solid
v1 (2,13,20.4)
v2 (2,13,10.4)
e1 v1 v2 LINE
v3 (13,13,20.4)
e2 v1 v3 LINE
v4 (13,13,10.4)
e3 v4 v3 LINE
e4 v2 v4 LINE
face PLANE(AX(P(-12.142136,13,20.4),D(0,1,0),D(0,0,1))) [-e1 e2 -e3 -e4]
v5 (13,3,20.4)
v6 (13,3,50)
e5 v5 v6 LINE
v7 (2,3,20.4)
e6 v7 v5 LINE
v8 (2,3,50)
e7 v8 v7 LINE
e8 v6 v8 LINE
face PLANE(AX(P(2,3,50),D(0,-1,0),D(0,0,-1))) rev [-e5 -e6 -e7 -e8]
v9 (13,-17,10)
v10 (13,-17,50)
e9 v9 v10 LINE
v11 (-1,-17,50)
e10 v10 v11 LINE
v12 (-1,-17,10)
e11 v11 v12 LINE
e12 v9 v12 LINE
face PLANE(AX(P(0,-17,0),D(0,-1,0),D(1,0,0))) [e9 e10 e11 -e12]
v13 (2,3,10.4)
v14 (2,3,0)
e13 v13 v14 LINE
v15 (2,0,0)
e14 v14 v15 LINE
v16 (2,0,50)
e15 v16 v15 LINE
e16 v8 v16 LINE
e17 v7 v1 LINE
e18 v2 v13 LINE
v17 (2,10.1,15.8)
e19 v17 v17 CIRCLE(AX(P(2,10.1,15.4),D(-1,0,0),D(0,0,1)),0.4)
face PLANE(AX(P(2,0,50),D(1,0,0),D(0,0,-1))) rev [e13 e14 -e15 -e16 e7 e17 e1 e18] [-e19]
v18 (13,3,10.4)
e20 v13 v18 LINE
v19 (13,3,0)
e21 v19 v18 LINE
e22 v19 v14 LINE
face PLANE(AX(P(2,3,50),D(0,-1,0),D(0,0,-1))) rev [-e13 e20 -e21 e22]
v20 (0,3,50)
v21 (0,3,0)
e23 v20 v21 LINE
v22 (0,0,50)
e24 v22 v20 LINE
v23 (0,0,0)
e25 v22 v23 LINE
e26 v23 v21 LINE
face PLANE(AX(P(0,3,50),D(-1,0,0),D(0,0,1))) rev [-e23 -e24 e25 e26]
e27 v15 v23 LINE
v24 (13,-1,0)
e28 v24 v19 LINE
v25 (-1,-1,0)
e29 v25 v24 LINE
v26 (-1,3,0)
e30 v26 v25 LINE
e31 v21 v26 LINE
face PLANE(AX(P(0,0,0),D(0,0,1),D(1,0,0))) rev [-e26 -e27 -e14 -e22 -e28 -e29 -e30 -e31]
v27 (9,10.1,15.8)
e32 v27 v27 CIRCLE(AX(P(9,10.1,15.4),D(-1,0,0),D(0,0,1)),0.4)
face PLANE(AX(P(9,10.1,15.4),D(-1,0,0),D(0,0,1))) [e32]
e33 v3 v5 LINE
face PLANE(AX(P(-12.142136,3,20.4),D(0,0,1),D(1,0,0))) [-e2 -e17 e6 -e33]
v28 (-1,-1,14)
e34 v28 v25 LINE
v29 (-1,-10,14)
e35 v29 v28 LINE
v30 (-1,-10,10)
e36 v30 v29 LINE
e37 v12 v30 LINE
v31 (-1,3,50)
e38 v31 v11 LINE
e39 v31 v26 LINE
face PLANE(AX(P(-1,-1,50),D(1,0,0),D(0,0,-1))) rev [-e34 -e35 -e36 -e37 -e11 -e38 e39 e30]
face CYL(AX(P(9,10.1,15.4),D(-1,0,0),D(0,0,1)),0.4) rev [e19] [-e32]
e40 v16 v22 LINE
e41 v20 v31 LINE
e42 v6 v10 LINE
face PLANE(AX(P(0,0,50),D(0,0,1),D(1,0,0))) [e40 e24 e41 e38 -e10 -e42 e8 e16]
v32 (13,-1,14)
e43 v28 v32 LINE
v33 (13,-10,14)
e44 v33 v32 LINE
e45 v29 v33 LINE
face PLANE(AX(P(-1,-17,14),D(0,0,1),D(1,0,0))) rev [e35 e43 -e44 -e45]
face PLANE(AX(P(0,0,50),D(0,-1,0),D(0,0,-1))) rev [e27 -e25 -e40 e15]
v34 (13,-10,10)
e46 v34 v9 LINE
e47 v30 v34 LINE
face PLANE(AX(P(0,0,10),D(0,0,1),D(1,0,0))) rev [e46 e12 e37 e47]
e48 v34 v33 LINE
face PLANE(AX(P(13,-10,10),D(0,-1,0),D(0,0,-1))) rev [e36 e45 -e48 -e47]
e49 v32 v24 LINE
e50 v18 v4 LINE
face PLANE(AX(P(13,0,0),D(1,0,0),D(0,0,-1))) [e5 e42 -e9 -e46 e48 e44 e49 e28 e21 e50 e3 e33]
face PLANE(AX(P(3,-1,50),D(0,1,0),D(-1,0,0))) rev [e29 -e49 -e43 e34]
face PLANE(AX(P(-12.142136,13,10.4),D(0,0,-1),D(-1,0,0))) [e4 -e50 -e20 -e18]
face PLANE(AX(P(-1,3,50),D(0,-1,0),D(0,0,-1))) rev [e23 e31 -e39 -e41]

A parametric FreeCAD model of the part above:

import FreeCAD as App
import Part
import Sketcher
from FreeCAD import Vector
Q = App.Units.Quantity

doc = App.newDocument("Part")
body = doc.addObject("PartDesign::Body", "Body")

sketch1 = doc.addObject("Sketcher::SketchObject", "Sketch")
body.addObject(sketch1)
sketch1.AttachmentSupport = (doc.XY_Plane, [""])
sketch1.MapMode = "FlatFace"
sketch1.addGeometry(Part.LineSegment(Vector(2, 0, 0), Vector(0, 0, 0)), False)
sketch1.addGeometry(Part.LineSegment(Vector(0, 0, 0), Vector(0, 3, 0)), False)
sketch1.addGeometry(Part.LineSegment(Vector(0, 3, 0), Vector(-1, 3, 0)), False)
sketch1.addGeometry(Part.LineSegment(Vector(-1, 3, 0), Vector(-1, -1, 0)), False)
sketch1.addGeometry(Part.LineSegment(Vector(-1, -1, 0), Vector(3, -1, 0)), False)
sketch1.addGeometry(Part.LineSegment(Vector(3, -1, 0), Vector(3, 3, 0)), False)
sketch1.addGeometry(Part.LineSegment(Vector(3, 3, 0), Vector(2, 3, 0)), False)
sketch1.addGeometry(Part.LineSegment(Vector(2, 3, 0), Vector(2, 0, 0)), False)
sketch1.addConstraint(Sketcher.Constraint("Coincident", 0, 2, 1, 1))
sketch1.addConstraint(Sketcher.Constraint("Coincident", 1, 2, 2, 1))
sketch1.addConstraint(Sketcher.Constraint("Coincident", 2, 2, 3, 1))
sketch1.addConstraint(Sketcher.Constraint("Coincident", 3, 2, 4, 1))
sketch1.addConstraint(Sketcher.Constraint("Coincident", 4, 2, 5, 1))
sketch1.addConstraint(Sketcher.Constraint("Coincident", 5, 2, 6, 1))
sketch1.addConstraint(Sketcher.Constraint("Coincident", 6, 2, 7, 1))
sketch1.addConstraint(Sketcher.Constraint("Coincident", 7, 2, 0, 1))
sketch1.addConstraint(Sketcher.Constraint("Horizontal", 0))
sketch1.addConstraint(Sketcher.Constraint("Vertical", 1))
sketch1.addConstraint(Sketcher.Constraint("Horizontal", 2))
sketch1.addConstraint(Sketcher.Constraint("Vertical", 3))
sketch1.addConstraint(Sketcher.Constraint("Horizontal", 4))
sketch1.addConstraint(Sketcher.Constraint("Vertical", 5))
sketch1.addConstraint(Sketcher.Constraint("Horizontal", 6))
sketch1.addConstraint(Sketcher.Constraint("Vertical", 7))
sketch1.addConstraint(Sketcher.Constraint("Coincident", 0, 2, -1, 1))
sketch1.addConstraint(Sketcher.Constraint("Horizontal", 2, 2, 5, 2))
sketch1.addConstraint(Sketcher.Constraint("Equal", 2, 6))
sketch1.addConstraint(Sketcher.Constraint("Equal", 4, 3))
sketch1.addConstraint(Sketcher.Constraint("DistanceX", 0, 2, 0, 1, Q("2 mm")))
sketch1.addConstraint(Sketcher.Constraint("DistanceX", 2, 2, 2, 1, Q("1 mm")))
sketch1.addConstraint(Sketcher.Constraint("DistanceY", 1, 1, 1, 2, Q("3 mm")))
pad1 = doc.addObject("PartDesign::Pad", "Pad")
body.addObject(pad1)
pad1.Profile = sketch1
pad1.Length = 50

sketch2 = doc.addObject("Sketcher::SketchObject", "Sketch001")
body.addObject(sketch2)
sketch2.AttachmentSupport = (doc.YZ_Plane, [""])
sketch2.MapMode = "FlatFace"
sketch2.AttachmentOffset = App.Placement(Vector(0, 0, 3), App.Rotation())
sketch2.addGeometry(Part.LineSegment(Vector(3, 50, 0), Vector(-1, 50, 0)), False)
sketch2.addGeometry(Part.LineSegment(Vector(-1, 50, 0), Vector(-1, 0, 0)), False)
sketch2.addGeometry(Part.LineSegment(Vector(-1, 0, 0), Vector(3, 0, 0)), False)
sketch2.addGeometry(Part.LineSegment(Vector(3, 0, 0), Vector(3, 50, 0)), False)
sketch2.addConstraint(Sketcher.Constraint("Coincident", 0, 2, 1, 1))
sketch2.addConstraint(Sketcher.Constraint("Coincident", 1, 2, 2, 1))
sketch2.addConstraint(Sketcher.Constraint("Coincident", 2, 2, 3, 1))
sketch2.addConstraint(Sketcher.Constraint("Coincident", 3, 2, 0, 1))
sketch2.addConstraint(Sketcher.Constraint("Horizontal", 0))
sketch2.addConstraint(Sketcher.Constraint("Vertical", 1))
sketch2.addConstraint(Sketcher.Constraint("Horizontal", 2))
sketch2.addConstraint(Sketcher.Constraint("Vertical", 3))
sketch2.addConstraint(Sketcher.Constraint("PointOnObject", 1, 2, -1))
sketch2.addConstraint(Sketcher.Constraint("DistanceX", 0, 2, 0, 1, Q("4 mm")))
sketch2.addConstraint(Sketcher.Constraint("DistanceY", 1, 2, 1, 1, Q("50 mm")))
sketch2.addConstraint(Sketcher.Constraint("DistanceX", 0, 2, -1, 1, Q("1 mm")))
pad2 = doc.addObject("PartDesign::Pad", "Pad001")
body.addObject(pad2)
pad2.Profile = sketch2
pad2.Length = 10

sketch3 = doc.addObject("Sketcher::SketchObject", "Sketch002")
body.addObject(sketch3)
sketch3.AttachmentSupport = (doc.XZ_Plane, [""])
sketch3.MapMode = "FlatFace"
sketch3.AttachmentOffset = App.Placement(Vector(0, 0, 1), App.Rotation())
sketch3.addGeometry(Part.LineSegment(Vector(-1, 50, 0), Vector(-1, 14, 0)), False)
sketch3.addGeometry(Part.LineSegment(Vector(-1, 14, 0), Vector(13, 14, 0)), False)
sketch3.addGeometry(Part.LineSegment(Vector(13, 14, 0), Vector(13, 50, 0)), False)
sketch3.addGeometry(Part.LineSegment(Vector(13, 50, 0), Vector(-1, 50, 0)), False)
sketch3.addConstraint(Sketcher.Constraint("Coincident", 0, 2, 1, 1))
sketch3.addConstraint(Sketcher.Constraint("Coincident", 1, 2, 2, 1))
sketch3.addConstraint(Sketcher.Constraint("Coincident", 2, 2, 3, 1))
sketch3.addConstraint(Sketcher.Constraint("Coincident", 3, 2, 0, 1))
sketch3.addConstraint(Sketcher.Constraint("Vertical", 0))
sketch3.addConstraint(Sketcher.Constraint("Horizontal", 1))
sketch3.addConstraint(Sketcher.Constraint("Vertical", 2))
sketch3.addConstraint(Sketcher.Constraint("Horizontal", 3))
sketch3.addConstraint(Sketcher.Constraint("DistanceX", 1, 1, 1, 2, Q("14 mm")))
sketch3.addConstraint(Sketcher.Constraint("DistanceY", 0, 2, 0, 1, Q("36 mm")))
sketch3.addConstraint(Sketcher.Constraint("DistanceX", 0, 2, -1, 1, Q("1 mm")))
sketch3.addConstraint(Sketcher.Constraint("DistanceY", -1, 1, 0, 2, Q("14 mm")))
pad3 = doc.addObject("PartDesign::Pad", "Pad002")
body.addObject(pad3)
pad3.Profile = sketch3
pad3.Length = 16

sketch4 = doc.addObject("Sketcher::SketchObject", "Sketch003")
body.addObject(sketch4)
sketch4.AttachmentSupport = (doc.XY_Plane, [""])
sketch4.MapMode = "FlatFace"
sketch4.AttachmentOffset = App.Placement(Vector(0, 0, 14), App.Rotation())
sketch4.addGeometry(Part.LineSegment(Vector(13, -10, 0), Vector(13, -17, 0)), False)
sketch4.addGeometry(Part.LineSegment(Vector(13, -17, 0), Vector(-1, -17, 0)), False)
sketch4.addGeometry(Part.LineSegment(Vector(-1, -17, 0), Vector(-1, -10, 0)), False)
sketch4.addGeometry(Part.LineSegment(Vector(-1, -10, 0), Vector(13, -10, 0)), False)
sketch4.addConstraint(Sketcher.Constraint("Coincident", 0, 2, 1, 1))
sketch4.addConstraint(Sketcher.Constraint("Coincident", 1, 2, 2, 1))
sketch4.addConstraint(Sketcher.Constraint("Coincident", 2, 2, 3, 1))
sketch4.addConstraint(Sketcher.Constraint("Coincident", 3, 2, 0, 1))
sketch4.addConstraint(Sketcher.Constraint("Vertical", 0))
sketch4.addConstraint(Sketcher.Constraint("Horizontal", 1))
sketch4.addConstraint(Sketcher.Constraint("Vertical", 2))
sketch4.addConstraint(Sketcher.Constraint("Horizontal", 3))
sketch4.addConstraint(Sketcher.Constraint("DistanceX", 1, 2, 1, 1, Q("14 mm")))
sketch4.addConstraint(Sketcher.Constraint("DistanceY", 0, 2, 0, 1, Q("7 mm")))
sketch4.addConstraint(Sketcher.Constraint("DistanceX", -1, 1, 0, 2, Q("13 mm")))
sketch4.addConstraint(Sketcher.Constraint("DistanceY", 0, 2, -1, 1, Q("17 mm")))
pad4 = doc.addObject("PartDesign::Pad", "Pad003")
body.addObject(pad4)
pad4.Profile = sketch4
pad4.Length = 4
pad4.Reversed = True

sketch5 = doc.addObject("Sketcher::SketchObject", "Sketch004")
body.addObject(sketch5)
sketch5.AttachmentSupport = (doc.YZ_Plane, [""])
sketch5.MapMode = "FlatFace"
sketch5.AttachmentOffset = App.Placement(Vector(0, 0, 13), App.Rotation())
sketch5.addGeometry(Part.LineSegment(Vector(13, 20, 0), Vector(3, 20, 0)), False)
sketch5.addGeometry(Part.LineSegment(Vector(3, 20, 0), Vector(3, 10, 0)), False)
sketch5.addGeometry(Part.LineSegment(Vector(3, 10, 0), Vector(13, 10, 0)), False)
sketch5.addGeometry(Part.LineSegment(Vector(13, 10, 0), Vector(13, 20, 0)), False)
sketch5.addConstraint(Sketcher.Constraint("Coincident", 0, 2, 1, 1))
sketch5.addConstraint(Sketcher.Constraint("Coincident", 1, 2, 2, 1))
sketch5.addConstraint(Sketcher.Constraint("Coincident", 2, 2, 3, 1))
sketch5.addConstraint(Sketcher.Constraint("Coincident", 3, 2, 0, 1))
sketch5.addConstraint(Sketcher.Constraint("Horizontal", 0))
sketch5.addConstraint(Sketcher.Constraint("Vertical", 1))
sketch5.addConstraint(Sketcher.Constraint("Horizontal", 2))
sketch5.addConstraint(Sketcher.Constraint("Vertical", 3))
sketch5.addConstraint(Sketcher.Constraint("Equal", 2, 1))
sketch5.addConstraint(Sketcher.Constraint("DistanceX", 0, 2, 0, 1, Q("10 mm")))
sketch5.addConstraint(Sketcher.Constraint("DistanceX", -1, 1, 0, 2, Q("3 mm")))
sketch5.addConstraint(Sketcher.Constraint("DistanceY", -1, 1, 0, 2, Q("20.4 mm")))
pad5 = doc.addObject("PartDesign::Pad", "Pad004")
body.addObject(pad5)
pad5.Profile = sketch5
pad5.Length = 11
pad5.Reversed = True

sketch6 = doc.addObject("Sketcher::SketchObject", "Sketch005")
body.addObject(sketch6)
sketch6.AttachmentSupport = (doc.YZ_Plane, [""])
sketch6.MapMode = "FlatFace"
sketch6.AttachmentOffset = App.Placement(Vector(0, 0, 2), App.Rotation())
sketch6.addGeometry(Part.Circle(Vector(10.1, 15.4, 0), Vector(0, 0, 1), 0.4), False)
sketch6.addConstraint(Sketcher.Constraint("Diameter", 0, Q("0.8 mm")))
sketch6.addConstraint(Sketcher.Constraint("DistanceX", -1, 1, 0, 3, Q("10.1 mm")))
sketch6.addConstraint(Sketcher.Constraint("DistanceY", -1, 1, 0, 3, Q("15.4 mm")))
pocket1 = doc.addObject("PartDesign::Pocket", "Pocket")
body.addObject(pocket1)
pocket1.Profile = sketch6
pocket1.Length = 7
pocket1.Reversed = True

doc.recompute()
